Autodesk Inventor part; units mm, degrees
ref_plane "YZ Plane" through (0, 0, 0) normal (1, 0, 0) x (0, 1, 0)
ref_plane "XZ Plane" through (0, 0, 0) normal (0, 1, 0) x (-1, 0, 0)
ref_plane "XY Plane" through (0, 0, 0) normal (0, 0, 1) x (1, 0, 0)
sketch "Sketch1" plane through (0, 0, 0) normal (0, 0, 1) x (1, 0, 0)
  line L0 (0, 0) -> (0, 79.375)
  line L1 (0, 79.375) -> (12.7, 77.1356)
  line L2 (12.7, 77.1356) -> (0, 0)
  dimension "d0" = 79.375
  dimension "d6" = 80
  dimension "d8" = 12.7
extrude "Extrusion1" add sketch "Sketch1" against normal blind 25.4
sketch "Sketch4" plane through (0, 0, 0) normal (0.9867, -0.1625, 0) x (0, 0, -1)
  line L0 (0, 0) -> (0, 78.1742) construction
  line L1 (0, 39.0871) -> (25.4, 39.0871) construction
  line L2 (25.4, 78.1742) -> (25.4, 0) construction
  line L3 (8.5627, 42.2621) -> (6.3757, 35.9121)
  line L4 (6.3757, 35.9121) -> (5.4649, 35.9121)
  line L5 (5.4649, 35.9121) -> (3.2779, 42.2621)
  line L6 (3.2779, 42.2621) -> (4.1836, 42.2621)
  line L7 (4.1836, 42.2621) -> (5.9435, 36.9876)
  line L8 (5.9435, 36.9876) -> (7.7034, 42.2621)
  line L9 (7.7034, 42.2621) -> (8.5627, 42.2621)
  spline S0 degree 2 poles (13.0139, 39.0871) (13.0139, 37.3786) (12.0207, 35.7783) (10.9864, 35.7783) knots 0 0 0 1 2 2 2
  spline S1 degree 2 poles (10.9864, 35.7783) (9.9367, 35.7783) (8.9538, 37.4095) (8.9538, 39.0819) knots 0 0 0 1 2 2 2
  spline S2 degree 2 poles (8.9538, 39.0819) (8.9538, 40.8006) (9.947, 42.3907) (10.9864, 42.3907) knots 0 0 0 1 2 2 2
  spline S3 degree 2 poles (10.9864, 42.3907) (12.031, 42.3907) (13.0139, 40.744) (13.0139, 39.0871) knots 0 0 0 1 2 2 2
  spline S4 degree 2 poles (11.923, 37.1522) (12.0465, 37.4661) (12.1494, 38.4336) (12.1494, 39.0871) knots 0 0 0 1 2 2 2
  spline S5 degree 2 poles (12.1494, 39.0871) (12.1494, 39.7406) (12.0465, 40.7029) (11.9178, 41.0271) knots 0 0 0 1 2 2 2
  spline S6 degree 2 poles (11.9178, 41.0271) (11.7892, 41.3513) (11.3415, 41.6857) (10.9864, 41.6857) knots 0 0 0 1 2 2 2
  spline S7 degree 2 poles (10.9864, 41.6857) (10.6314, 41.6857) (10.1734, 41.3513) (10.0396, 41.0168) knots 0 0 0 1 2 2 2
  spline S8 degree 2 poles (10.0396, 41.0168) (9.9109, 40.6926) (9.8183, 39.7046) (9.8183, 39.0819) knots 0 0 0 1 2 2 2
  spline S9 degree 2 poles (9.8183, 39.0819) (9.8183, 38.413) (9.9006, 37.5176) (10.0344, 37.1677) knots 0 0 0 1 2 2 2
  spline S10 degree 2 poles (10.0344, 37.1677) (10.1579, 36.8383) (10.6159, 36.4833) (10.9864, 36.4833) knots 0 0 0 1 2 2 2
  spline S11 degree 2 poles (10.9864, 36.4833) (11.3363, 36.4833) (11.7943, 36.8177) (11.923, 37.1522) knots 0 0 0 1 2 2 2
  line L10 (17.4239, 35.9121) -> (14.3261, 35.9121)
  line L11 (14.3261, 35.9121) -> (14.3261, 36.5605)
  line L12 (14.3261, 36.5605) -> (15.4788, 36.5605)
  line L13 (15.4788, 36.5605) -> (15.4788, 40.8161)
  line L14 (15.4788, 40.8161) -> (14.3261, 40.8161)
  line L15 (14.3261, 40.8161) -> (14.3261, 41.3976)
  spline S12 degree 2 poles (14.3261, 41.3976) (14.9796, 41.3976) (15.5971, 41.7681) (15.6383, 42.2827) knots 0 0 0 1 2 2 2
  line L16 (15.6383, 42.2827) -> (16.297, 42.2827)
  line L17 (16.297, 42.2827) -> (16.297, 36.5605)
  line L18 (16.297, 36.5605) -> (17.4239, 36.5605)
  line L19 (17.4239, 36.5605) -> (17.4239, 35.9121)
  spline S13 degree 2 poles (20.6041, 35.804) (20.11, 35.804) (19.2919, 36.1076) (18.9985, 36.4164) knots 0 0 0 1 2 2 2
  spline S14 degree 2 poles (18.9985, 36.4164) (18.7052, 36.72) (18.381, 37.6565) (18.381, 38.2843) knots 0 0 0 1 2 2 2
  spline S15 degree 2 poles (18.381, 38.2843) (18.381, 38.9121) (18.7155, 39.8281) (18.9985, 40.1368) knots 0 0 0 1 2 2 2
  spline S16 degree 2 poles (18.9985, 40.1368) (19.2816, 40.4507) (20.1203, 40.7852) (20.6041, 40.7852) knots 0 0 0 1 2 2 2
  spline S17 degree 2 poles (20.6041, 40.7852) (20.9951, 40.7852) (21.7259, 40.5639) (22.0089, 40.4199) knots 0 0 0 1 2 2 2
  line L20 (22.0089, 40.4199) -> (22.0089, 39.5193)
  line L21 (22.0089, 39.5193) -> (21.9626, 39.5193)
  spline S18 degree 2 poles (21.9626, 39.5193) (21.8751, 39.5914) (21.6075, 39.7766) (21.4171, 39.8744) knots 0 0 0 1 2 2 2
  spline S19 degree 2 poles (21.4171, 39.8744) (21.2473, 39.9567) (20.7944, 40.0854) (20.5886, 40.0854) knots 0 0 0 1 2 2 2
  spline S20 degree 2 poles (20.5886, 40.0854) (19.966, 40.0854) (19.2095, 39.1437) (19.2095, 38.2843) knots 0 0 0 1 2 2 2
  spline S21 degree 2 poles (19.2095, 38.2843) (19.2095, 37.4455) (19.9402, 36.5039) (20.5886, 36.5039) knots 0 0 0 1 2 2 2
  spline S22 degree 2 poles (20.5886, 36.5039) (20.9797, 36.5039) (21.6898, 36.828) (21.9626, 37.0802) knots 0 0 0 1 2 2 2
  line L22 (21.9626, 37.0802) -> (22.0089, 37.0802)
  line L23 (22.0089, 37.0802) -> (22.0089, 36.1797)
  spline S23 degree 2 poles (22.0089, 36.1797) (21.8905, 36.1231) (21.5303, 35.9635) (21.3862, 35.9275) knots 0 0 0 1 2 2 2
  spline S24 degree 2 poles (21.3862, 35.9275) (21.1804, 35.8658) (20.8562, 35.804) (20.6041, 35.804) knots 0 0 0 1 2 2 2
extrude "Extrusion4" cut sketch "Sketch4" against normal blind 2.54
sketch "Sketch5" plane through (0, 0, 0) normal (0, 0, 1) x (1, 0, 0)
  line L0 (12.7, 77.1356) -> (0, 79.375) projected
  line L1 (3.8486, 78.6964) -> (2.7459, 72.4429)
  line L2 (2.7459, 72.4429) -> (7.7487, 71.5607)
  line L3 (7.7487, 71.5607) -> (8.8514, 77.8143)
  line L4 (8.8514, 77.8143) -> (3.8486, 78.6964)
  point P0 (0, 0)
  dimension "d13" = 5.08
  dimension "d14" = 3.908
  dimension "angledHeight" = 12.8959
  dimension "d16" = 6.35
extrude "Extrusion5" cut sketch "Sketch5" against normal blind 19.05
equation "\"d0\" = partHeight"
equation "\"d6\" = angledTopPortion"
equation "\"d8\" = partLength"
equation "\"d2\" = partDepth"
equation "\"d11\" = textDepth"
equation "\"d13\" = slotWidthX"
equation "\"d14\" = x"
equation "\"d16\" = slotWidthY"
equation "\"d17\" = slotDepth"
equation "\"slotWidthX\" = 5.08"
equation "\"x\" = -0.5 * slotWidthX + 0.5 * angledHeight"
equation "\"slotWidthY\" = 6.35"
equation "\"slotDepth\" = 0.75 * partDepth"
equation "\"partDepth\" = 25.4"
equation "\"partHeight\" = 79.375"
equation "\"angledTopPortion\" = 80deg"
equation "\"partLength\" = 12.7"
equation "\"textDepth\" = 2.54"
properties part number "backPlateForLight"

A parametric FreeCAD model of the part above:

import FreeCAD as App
import Part
import Sketcher

V = App.Vector
Q = App.Units.Quantity

doc = App.newDocument("Part")
body = doc.addObject("PartDesign::Body", "Body")

sketch1 = doc.addObject("Sketcher::SketchObject", "Sketch")
body.addObject(sketch1)
sketch1.AttachmentSupport = (doc.XY_Plane, [""])
sketch1.MapMode = "FlatFace"
sketch1.addGeometry(Part.LineSegment(V(0, 79, 0), V(0, 0, 0)), False)
sketch1.addGeometry(Part.LineSegment(V(0, 0, 0), V(13, 77, 0)), False)
sketch1.addGeometry(Part.LineSegment(V(13, 77, 0), V(0, 79, 0)), False)
sketch1.addConstraint(Sketcher.Constraint("Coincident", 0, 2, 1, 1))
sketch1.addConstraint(Sketcher.Constraint("Coincident", 1, 2, 2, 1))
sketch1.addConstraint(Sketcher.Constraint("Coincident", 2, 2, 0, 1))
sketch1.addConstraint(Sketcher.Constraint("Vertical", 0))
sketch1.addConstraint(Sketcher.Constraint("Coincident", 0, 2, -1, 1))
sketch1.addConstraint(Sketcher.Constraint("DistanceX", -1, 1, 1, 2, Q("0.5 in")))
sketch1.addConstraint(Sketcher.Constraint("DistanceY", 0, 2, 0, 1, Q("3.125 in")))
sketch1.addConstraint(Sketcher.Constraint("Angle", 2, Q("169.9998 deg")))
pad1 = doc.addObject("PartDesign::Pad", "Pad")
body.addObject(pad1)
pad1.Profile = sketch1
pad1.Length = Q("1 in")
pad1.Reversed = True

sketch2 = doc.addObject("Sketcher::SketchObject", "Sketch001")
body.addObject(sketch2)
sketch2.Placement = App.Placement(V(0, 0, 0), App.Rotation(V(0, 0, -1), V(0.16250137, 0.986708318, 0), V(0.986708318, -0.16250137, 0), "ZXY"))
sketch2.addGeometry(Part.LineSegment(V(6.3757, 35.9121, 0), V(8.5627, 42.2621, 0)), False)
sketch2.addGeometry(Part.LineSegment(V(8.5627, 42.2621, 0), V(7.7034, 42.2621, 0)), False)
sketch2.addGeometry(Part.LineSegment(V(7.7034, 42.2621, 0), V(5.9435, 36.9876, 0)), False)
sketch2.addGeometry(Part.LineSegment(V(5.9435, 36.9876, 0), V(4.1836, 42.2621, 0)), False)
sketch2.addGeometry(Part.LineSegment(V(4.1836, 42.2621, 0), V(3.2779, 42.2621, 0)), False)
sketch2.addGeometry(Part.LineSegment(V(3.2779, 42.2621, 0), V(5.4649, 35.9121, 0)), False)
sketch2.addGeometry(Part.LineSegment(V(5.4649, 35.9121, 0), V(6.3757, 35.9121, 0)), False)
sketch2.addGeometry(Part.BSplineCurve([V(13.0139, 39.0871, 0), V(13.0139, 37.3786, 0), V(12.0207, 35.7783, 0), V(10.9864, 35.7783, 0)], [3, 1, 3], [0, 1, 2], False, 2, [1, 1, 1, 1], False), False)
sketch2.addGeometry(Part.BSplineCurve([V(10.9864, 42.3907, 0), V(12.031, 42.3907, 0), V(13.0139, 40.744, 0), V(13.0139, 39.0871, 0)], [3, 1, 3], [0, 1, 2], False, 2, [1, 1, 1, 1], False), False)
sketch2.addGeometry(Part.BSplineCurve([V(8.9538, 39.0819, 0), V(8.9538, 40.8006, 0), V(9.947, 42.3907, 0), V(10.9864, 42.3907, 0)], [3, 1, 3], [0, 1, 2], False, 2, [1, 1, 1, 1], False), False)
sketch2.addGeometry(Part.BSplineCurve([V(10.9864, 35.7783, 0), V(9.9367, 35.7783, 0), V(8.9538, 37.4095, 0), V(8.9538, 39.0819, 0)], [3, 1, 3], [0, 1, 2], False, 2, [1, 1, 1, 1], False), False)
sketch2.addGeometry(Part.BSplineCurve([V(11.923, 37.1522, 0), V(12.0465, 37.4661, 0), V(12.1494, 38.4336, 0), V(12.1494, 39.0871, 0)], [3, 1, 3], [0, 1, 2], False, 2, [1, 1, 1, 1], False), False)
sketch2.addGeometry(Part.BSplineCurve([V(10.9864, 36.4833, 0), V(11.3363, 36.4833, 0), V(11.7943, 36.8177, 0), V(11.923, 37.1522, 0)], [3, 1, 3], [0, 1, 2], False, 2, [1, 1, 1, 1], False), False)
sketch2.addGeometry(Part.BSplineCurve([V(10.0344, 37.1677, 0), V(10.1579, 36.8383, 0), V(10.6159, 36.4833, 0), V(10.9864, 36.4833, 0)], [3, 1, 3], [0, 1, 2], False, 2, [1, 1, 1, 1], False), False)
sketch2.addGeometry(Part.BSplineCurve([V(9.8183, 39.0819, 0), V(9.8183, 38.413, 0), V(9.9006, 37.5176, 0), V(10.0344, 37.1677, 0)], [3, 1, 3], [0, 1, 2], False, 2, [1, 1, 1, 1], False), False)
sketch2.addGeometry(Part.BSplineCurve([V(10.0396, 41.0168, 0), V(9.9109, 40.6926, 0), V(9.8183, 39.7046, 0), V(9.8183, 39.0819, 0)], [3, 1, 3], [0, 1, 2], False, 2, [1, 1, 1, 1], False), False)
sketch2.addGeometry(Part.BSplineCurve([V(10.9864, 41.6857, 0), V(10.6314, 41.6857, 0), V(10.1734, 41.3513, 0), V(10.0396, 41.0168, 0)], [3, 1, 3], [0, 1, 2], False, 2, [1, 1, 1, 1], False), False)
sketch2.addGeometry(Part.BSplineCurve([V(11.9178, 41.0271, 0), V(11.7892, 41.3513, 0), V(11.3415, 41.6857, 0), V(10.9864, 41.6857, 0)], [3, 1, 3], [0, 1, 2], False, 2, [1, 1, 1, 1], False), False)
sketch2.addGeometry(Part.BSplineCurve([V(12.1494, 39.0871, 0), V(12.1494, 39.7406, 0), V(12.0465, 40.7029, 0), V(11.9178, 41.0271, 0)], [3, 1, 3], [0, 1, 2], False, 2, [1, 1, 1, 1], False), False)
sketch2.addGeometry(Part.LineSegment(V(14.3261, 35.9121, 0), V(17.4239, 35.9121, 0)), False)
sketch2.addGeometry(Part.LineSegment(V(17.4239, 35.9121, 0), V(17.4239, 36.5605, 0)), False)
sketch2.addGeometry(Part.LineSegment(V(17.4239, 36.5605, 0), V(16.297, 36.5605, 0)), False)
sketch2.addGeometry(Part.LineSegment(V(16.297, 36.5605, 0), V(16.297, 42.2827, 0)), False)
sketch2.addGeometry(Part.LineSegment(V(16.297, 42.2827, 0), V(15.6383, 42.2827, 0)), False)
sketch2.addGeometry(Part.BSplineCurve([V(14.3261, 41.3976, 0), V(14.9796, 41.3976, 0), V(15.5971, 41.7681, 0), V(15.6383, 42.2827, 0)], [3, 1, 3], [0, 1, 2], False, 2, [1, 1, 1, 1], False), False)
sketch2.addGeometry(Part.LineSegment(V(14.3261, 41.3976, 0), V(14.3261, 40.8161, 0)), False)
sketch2.addGeometry(Part.LineSegment(V(14.3261, 40.8161, 0), V(15.4788, 40.8161, 0)), False)
sketch2.addGeometry(Part.LineSegment(V(15.4788, 40.8161, 0), V(15.4788, 36.5605, 0)), False)
sketch2.addGeometry(Part.LineSegment(V(15.4788, 36.5605, 0), V(14.3261, 36.5605, 0)), False)
sketch2.addGeometry(Part.LineSegment(V(14.3261, 36.5605, 0), V(14.3261, 35.9121, 0)), False)
sketch2.addGeometry(Part.BSplineCurve([V(20.6041, 35.804, 0), V(20.11, 35.804, 0), V(19.2919, 36.1076, 0), V(18.9985, 36.4164, 0)], [3, 1, 3], [0, 1, 2], False, 2, [1, 1, 1, 1], False), False)
sketch2.addGeometry(Part.BSplineCurve([V(21.3862, 35.9275, 0), V(21.1804, 35.8658, 0), V(20.8562, 35.804, 0), V(20.6041, 35.804, 0)], [3, 1, 3], [0, 1, 2], False, 2, [1, 1, 1, 1], False), False)
sketch2.addGeometry(Part.BSplineCurve([V(22.0089, 36.1797, 0), V(21.8905, 36.1231, 0), V(21.5303, 35.9635, 0), V(21.3862, 35.9275, 0)], [3, 1, 3], [0, 1, 2], False, 2, [1, 1, 1, 1], False), False)
sketch2.addGeometry(Part.LineSegment(V(22.0089, 36.1797, 0), V(22.0089, 37.0802, 0)), False)
sketch2.addGeometry(Part.LineSegment(V(22.0089, 37.0802, 0), V(21.9626, 37.0802, 0)), False)
sketch2.addGeometry(Part.BSplineCurve([V(20.5886, 36.5039, 0), V(20.9797, 36.5039, 0), V(21.6898, 36.828, 0), V(21.9626, 37.0802, 0)], [3, 1, 3], [0, 1, 2], False, 2, [1, 1, 1, 1], False), False)
sketch2.addGeometry(Part.BSplineCurve([V(19.2095, 38.2843, 0), V(19.2095, 37.4455, 0), V(19.9402, 36.5039, 0), V(20.5886, 36.5039, 0)], [3, 1, 3], [0, 1, 2], False, 2, [1, 1, 1, 1], False), False)
sketch2.addGeometry(Part.BSplineCurve([V(20.5886, 40.0854, 0), V(19.966, 40.0854, 0), V(19.2095, 39.1437, 0), V(19.2095, 38.2843, 0)], [3, 1, 3], [0, 1, 2], False, 2, [1, 1, 1, 1], False), False)
sketch2.addGeometry(Part.BSplineCurve([V(21.4171, 39.8744, 0), V(21.2473, 39.9567, 0), V(20.7944, 40.0854, 0), V(20.5886, 40.0854, 0)], [3, 1, 3], [0, 1, 2], False, 2, [1, 1, 1, 1], False), False)
sketch2.addGeometry(Part.BSplineCurve([V(21.9626, 39.5193, 0), V(21.8751, 39.5914, 0), V(21.6075, 39.7766, 0), V(21.4171, 39.8744, 0)], [3, 1, 3], [0, 1, 2], False, 2, [1, 1, 1, 1], False), False)
sketch2.addGeometry(Part.LineSegment(V(21.9626, 39.5193, 0), V(22.0089, 39.5193, 0)), False)
sketch2.addGeometry(Part.LineSegment(V(22.0089, 39.5193, 0), V(22.0089, 40.4199, 0)), False)
sketch2.addGeometry(Part.BSplineCurve([V(20.6041, 40.7852, 0), V(20.9951, 40.7852, 0), V(21.7259, 40.5639, 0), V(22.0089, 40.4199, 0)], [3, 1, 3], [0, 1, 2], False, 2, [1, 1, 1, 1], False), False)
sketch2.addGeometry(Part.BSplineCurve([V(18.9985, 40.1368, 0), V(19.2816, 40.4507, 0), V(20.1203, 40.7852, 0), V(20.6041, 40.7852, 0)], [3, 1, 3], [0, 1, 2], False, 2, [1, 1, 1, 1], False), False)
sketch2.addGeometry(Part.BSplineCurve([V(18.381, 38.2843, 0), V(18.381, 38.9121, 0), V(18.7155, 39.8281, 0), V(18.9985, 40.1368, 0)], [3, 1, 3], [0, 1, 2], False, 2, [1, 1, 1, 1], False), False)
sketch2.addGeometry(Part.BSplineCurve([V(18.9985, 36.4164, 0), V(18.7052, 36.72, 0), V(18.381, 37.6565, 0), V(18.381, 38.2843, 0)], [3, 1, 3], [0, 1, 2], False, 2, [1, 1, 1, 1], False), False)
sketch2.addConstraint(Sketcher.Constraint("Block", 7))
sketch2.addConstraint(Sketcher.Constraint("Block", 8))
sketch2.addConstraint(Sketcher.Constraint("Block", 9))
sketch2.addConstraint(Sketcher.Constraint("Block", 10))
sketch2.addConstraint(Sketcher.Constraint("Block", 11))
sketch2.addConstraint(Sketcher.Constraint("Block", 12))
sketch2.addConstraint(Sketcher.Constraint("Block", 13))
sketch2.addConstraint(Sketcher.Constraint("Block", 14))
sketch2.addConstraint(Sketcher.Constraint("Block", 15))
sketch2.addConstraint(Sketcher.Constraint("Block", 16))
sketch2.addConstraint(Sketcher.Constraint("Block", 17))
sketch2.addConstraint(Sketcher.Constraint("Block", 18))
sketch2.addConstraint(Sketcher.Constraint("Block", 24))
sketch2.addConstraint(Sketcher.Constraint("Block", 30))
sketch2.addConstraint(Sketcher.Constraint("Block", 31))
sketch2.addConstraint(Sketcher.Constraint("Block", 32))
sketch2.addConstraint(Sketcher.Constraint("Block", 35))
sketch2.addConstraint(Sketcher.Constraint("Block", 36))
sketch2.addConstraint(Sketcher.Constraint("Block", 37))
sketch2.addConstraint(Sketcher.Constraint("Block", 38))
sketch2.addConstraint(Sketcher.Constraint("Block", 39))
sketch2.addConstraint(Sketcher.Constraint("Block", 42))
sketch2.addConstraint(Sketcher.Constraint("Block", 43))
sketch2.addConstraint(Sketcher.Constraint("Block", 44))
sketch2.addConstraint(Sketcher.Constraint("Block", 45))
sketch2.addConstraint(Sketcher.Constraint("Coincident", 0, 2, 1, 1))
sketch2.addConstraint(Sketcher.Constraint("Coincident", 1, 2, 2, 1))
sketch2.addConstraint(Sketcher.Constraint("Coincident", 2, 2, 3, 1))
sketch2.addConstraint(Sketcher.Constraint("Coincident", 3, 2, 4, 1))
sketch2.addConstraint(Sketcher.Constraint("Coincident", 4, 2, 5, 1))
sketch2.addConstraint(Sketcher.Constraint("Coincident", 5, 2, 6, 1))
sketch2.addConstraint(Sketcher.Constraint("Coincident", 6, 2, 0, 1))
sketch2.addConstraint(Sketcher.Constraint("Coincident", 19, 2, 20, 1))
sketch2.addConstraint(Sketcher.Constraint("Coincident", 20, 2, 21, 1))
sketch2.addConstraint(Sketcher.Constraint("Coincident", 21, 2, 22, 1))
sketch2.addConstraint(Sketcher.Constraint("Coincident", 22, 2, 23, 1))
sketch2.addConstraint(Sketcher.Constraint("Coincident", 23, 2, 24, 2))
sketch2.addConstraint(Sketcher.Constraint("Coincident", 24, 1, 25, 1))
sketch2.addConstraint(Sketcher.Constraint("Coincident", 25, 2, 26, 1))
sketch2.addConstraint(Sketcher.Constraint("Coincident", 26, 2, 27, 1))
sketch2.addConstraint(Sketcher.Constraint("Coincident", 27, 2, 28, 1))
sketch2.addConstraint(Sketcher.Constraint("Coincident", 28, 2, 29, 1))
sketch2.addConstraint(Sketcher.Constraint("Coincident", 29, 2, 19, 1))
sketch2.addConstraint(Sketcher.Constraint("Coincident", 32, 1, 33, 1))
sketch2.addConstraint(Sketcher.Constraint("Coincident", 33, 2, 34, 1))
sketch2.addConstraint(Sketcher.Constraint("Coincident", 34, 2, 35, 2))
sketch2.addConstraint(Sketcher.Constraint("Coincident", 39, 1, 40, 1))
sketch2.addConstraint(Sketcher.Constraint("Coincident", 40, 2, 41, 1))
sketch2.addConstraint(Sketcher.Constraint("Coincident", 41, 2, 42, 2))
sketch2.addConstraint(Sketcher.Constraint("Horizontal", 1))
sketch2.addConstraint(Sketcher.Constraint("Horizontal", 4))
sketch2.addConstraint(Sketcher.Constraint("Horizontal", 6))
sketch2.addConstraint(Sketcher.Constraint("Horizontal", 19))
sketch2.addConstraint(Sketcher.Constraint("Vertical", 20))
sketch2.addConstraint(Sketcher.Constraint("Horizontal", 21))
sketch2.addConstraint(Sketcher.Constraint("Vertical", 22))
sketch2.addConstraint(Sketcher.Constraint("Horizontal", 23))
sketch2.addConstraint(Sketcher.Constraint("Vertical", 25))
sketch2.addConstraint(Sketcher.Constraint("Horizontal", 26))
sketch2.addConstraint(Sketcher.Constraint("Vertical", 27))
sketch2.addConstraint(Sketcher.Constraint("Horizontal", 28))
sketch2.addConstraint(Sketcher.Constraint("Vertical", 29))
sketch2.addConstraint(Sketcher.Constraint("Vertical", 33))
sketch2.addConstraint(Sketcher.Constraint("Horizontal", 34))
sketch2.addConstraint(Sketcher.Constraint("Horizontal", 40))
sketch2.addConstraint(Sketcher.Constraint("Vertical", 41))
sketch2.addConstraint(Sketcher.Constraint("Horizontal", 1, 2, 3, 2))
sketch2.addConstraint(Sketcher.Constraint("Horizontal", 6, 2, 19, 2))
sketch2.addConstraint(Sketcher.Constraint("Horizontal", 21, 2, 27, 2))
sketch2.addConstraint(Sketcher.Constraint("Vertical", 25, 2, 28, 2))
sketch2.addConstraint(Sketcher.Constraint("Equal", 2, 3))
sketch2.addConstraint(Sketcher.Constraint("Equal", 0, 5))
sketch2.addConstraint(Sketcher.Constraint("DistanceY", 5, 2, 3, 2, Q("0.25 in")))
sketch2.addConstraint(Sketcher.Constraint("DistanceY", 25, 2, 25, 1, Q("0.0229 in")))
sketch2.addConstraint(Sketcher.Constraint("DistanceX", -1, 1, 2, 2, Q("0.234 in")))
sketch2.addConstraint(Sketcher.Constraint("DistanceX", -1, 1, 6, 2, Q("0.251 in")))
sketch2.addConstraint(Sketcher.Constraint("DistanceY", 19, 2, 33, 2, Q("0.046 in")))
sketch2.addConstraint(Sketcher.Constraint("Distance", 0, Q("0.2644 in")))
sketch2.addConstraint(Sketcher.Constraint("Distance", 2, Q("0.2189 in")))
sketch2.addConstraint(Sketcher.Constraint("DistanceX", 1, 2, 1, 1, Q("0.8593 mm")))
sketch2.addConstraint(Sketcher.Constraint("DistanceX", 4, 2, 4, 1, Q("0.9057 mm")))
sketch2.addConstraint(Sketcher.Constraint("DistanceX", 19, 1, 19, 2, Q("3.0978 mm")))
sketch2.addConstraint(Sketcher.Constraint("DistanceX", 21, 2, 21, 1, Q("1.127 mm")))
sketch2.addConstraint(Sketcher.Constraint("DistanceX", 26, 1, 26, 2, Q("1.1527 mm")))
sketch2.addConstraint(Sketcher.Constraint("DistanceY", 20, 1, 20, 2, Q("0.6484 mm")))
pocket1 = doc.addObject("PartDesign::Pocket", "Pocket")
body.addObject(pocket1)
pocket1.Profile = sketch2
pocket1.Length = Q("0.1 in")

sketch3 = doc.addObject("Sketcher::SketchObject", "Sketch002")
body.addObject(sketch3)
sketch3.AttachmentSupport = (doc.XY_Plane, [""])
sketch3.MapMode = "FlatFace"
sketch3.addGeometry(Part.LineSegment(V(8, 72, 0), V(9, 78, 0)), False)
sketch3.addGeometry(Part.LineSegment(V(9, 78, 0), V(4, 79, 0)), False)
sketch3.addGeometry(Part.LineSegment(V(4, 79, 0), V(3, 72, 0)), False)
sketch3.addGeometry(Part.LineSegment(V(3, 72, 0), V(8, 72, 0)), False)
sketch3.addConstraint(Sketcher.Constraint("Coincident", 0, 2, 1, 1))
sketch3.addConstraint(Sketcher.Constraint("Coincident", 1, 2, 2, 1))
sketch3.addConstraint(Sketcher.Constraint("Coincident", 2, 2, 3, 1))
sketch3.addConstraint(Sketcher.Constraint("Coincident", 3, 2, 0, 1))
sketch3.addConstraint(Sketcher.Constraint("Perpendicular", 0, 1))
sketch3.addConstraint(Sketcher.Constraint("Perpendicular", 1, 2))
sketch3.addConstraint(Sketcher.Constraint("Perpendicular", 2, 3))
sketch3.addConstraint(Sketcher.Constraint("Distance", 1, Q("0.2 in")))
sketch3.addConstraint(Sketcher.Constraint("Distance", 0, Q("0.25 in")))
sketch3.addConstraint(Sketcher.Constraint("Angle", 0, Q("79.9998 deg")))
sketch3.addConstraint(Sketcher.Constraint("DistanceX", -1, 1, 2, 2, Q("0.1081 in")))
sketch3.addConstraint(Sketcher.Constraint("DistanceY", -1, 1, 0, 2, Q("77.8143 mm")))
pocket2 = doc.addObject("PartDesign::Pocket", "Pocket001")
body.addObject(pocket2)
pocket2.Profile = sketch3
pocket2.Length = Q("0.75 in")

doc.recompute()
